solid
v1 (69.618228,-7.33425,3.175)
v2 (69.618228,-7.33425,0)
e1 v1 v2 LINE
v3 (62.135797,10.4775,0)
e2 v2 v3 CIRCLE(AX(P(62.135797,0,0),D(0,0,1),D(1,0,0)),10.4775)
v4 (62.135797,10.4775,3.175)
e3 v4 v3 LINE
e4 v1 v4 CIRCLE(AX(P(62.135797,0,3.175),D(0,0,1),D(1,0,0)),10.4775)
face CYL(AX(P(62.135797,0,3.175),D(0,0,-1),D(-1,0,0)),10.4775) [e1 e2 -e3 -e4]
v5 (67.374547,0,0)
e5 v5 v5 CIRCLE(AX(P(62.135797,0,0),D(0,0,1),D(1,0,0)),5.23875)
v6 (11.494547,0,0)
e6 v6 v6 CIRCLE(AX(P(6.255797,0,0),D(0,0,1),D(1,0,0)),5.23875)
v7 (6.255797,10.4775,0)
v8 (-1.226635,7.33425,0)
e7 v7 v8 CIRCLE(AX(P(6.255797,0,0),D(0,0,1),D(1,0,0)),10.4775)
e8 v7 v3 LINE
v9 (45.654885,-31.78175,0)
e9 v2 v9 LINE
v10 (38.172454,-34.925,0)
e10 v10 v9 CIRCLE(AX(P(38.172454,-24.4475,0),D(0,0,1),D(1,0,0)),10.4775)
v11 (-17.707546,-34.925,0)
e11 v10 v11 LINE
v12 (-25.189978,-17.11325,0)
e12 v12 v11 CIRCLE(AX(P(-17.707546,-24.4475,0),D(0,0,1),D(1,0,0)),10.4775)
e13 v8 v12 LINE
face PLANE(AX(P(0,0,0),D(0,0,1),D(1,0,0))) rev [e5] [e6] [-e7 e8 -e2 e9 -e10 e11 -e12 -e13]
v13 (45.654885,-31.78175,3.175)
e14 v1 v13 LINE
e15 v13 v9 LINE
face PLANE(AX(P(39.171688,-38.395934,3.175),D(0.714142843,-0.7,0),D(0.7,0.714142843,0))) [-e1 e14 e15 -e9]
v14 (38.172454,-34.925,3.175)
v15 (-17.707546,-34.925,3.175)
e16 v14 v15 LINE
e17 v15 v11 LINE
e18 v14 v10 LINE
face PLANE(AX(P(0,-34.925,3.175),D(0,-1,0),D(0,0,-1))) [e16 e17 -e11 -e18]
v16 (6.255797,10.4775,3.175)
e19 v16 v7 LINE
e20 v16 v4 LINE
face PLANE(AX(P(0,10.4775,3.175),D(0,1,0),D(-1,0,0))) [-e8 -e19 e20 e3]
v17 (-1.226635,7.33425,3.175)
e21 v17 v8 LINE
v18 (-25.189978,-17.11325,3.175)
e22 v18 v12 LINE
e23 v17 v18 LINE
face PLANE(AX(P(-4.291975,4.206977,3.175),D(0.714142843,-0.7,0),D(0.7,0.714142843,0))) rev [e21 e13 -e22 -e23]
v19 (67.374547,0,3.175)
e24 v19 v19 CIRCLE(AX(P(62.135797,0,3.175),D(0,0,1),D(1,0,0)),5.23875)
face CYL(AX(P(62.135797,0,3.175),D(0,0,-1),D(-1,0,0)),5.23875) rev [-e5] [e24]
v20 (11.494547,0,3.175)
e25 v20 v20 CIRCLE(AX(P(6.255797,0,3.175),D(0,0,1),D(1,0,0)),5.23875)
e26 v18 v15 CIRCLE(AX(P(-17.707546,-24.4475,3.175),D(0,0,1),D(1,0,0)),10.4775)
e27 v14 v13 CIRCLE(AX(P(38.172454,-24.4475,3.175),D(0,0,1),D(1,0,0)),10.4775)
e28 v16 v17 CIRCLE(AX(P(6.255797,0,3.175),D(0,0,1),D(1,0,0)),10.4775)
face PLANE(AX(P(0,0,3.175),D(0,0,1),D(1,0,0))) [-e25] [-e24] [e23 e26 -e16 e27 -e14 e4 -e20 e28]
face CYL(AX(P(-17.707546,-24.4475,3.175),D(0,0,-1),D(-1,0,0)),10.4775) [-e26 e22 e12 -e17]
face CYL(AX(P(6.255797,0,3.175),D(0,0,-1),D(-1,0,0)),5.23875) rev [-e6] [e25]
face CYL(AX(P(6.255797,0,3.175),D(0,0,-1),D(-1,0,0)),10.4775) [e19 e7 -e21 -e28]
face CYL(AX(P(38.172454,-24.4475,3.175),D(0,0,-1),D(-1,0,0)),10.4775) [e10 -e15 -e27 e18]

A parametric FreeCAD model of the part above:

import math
import FreeCAD as App
import Part
import Sketcher
Q = App.Units.Quantity

doc = App.newDocument("Part")
params = doc.addObject("Spreadsheet::Sheet", "Params")
for row, (alias, value) in enumerate([
    ("sketch1_width", "2.2 in"),
    ("pad1_length", "0.125 in"),
], start=1):
    params.set(f"A{row}", alias)
    params.set(f"B{row}", "=" + value)
    params.setAlias(f"B{row}", alias)

body = doc.addObject("PartDesign::Body", "Body")

sketch1 = body.newObject("Sketcher::SketchObject", "Sketch")
sketch1.AttachmentSupport = (doc.getObject("XY_Plane"), [""])
sketch1.MapMode = "FlatFace"
sketch1.addGeometry(Part.ArcOfCircle(Part.Circle(App.Vector(62, 0, 0), App.Vector(0, 0, 1), 10), math.radians(-44), math.radians(90)), False)
sketch1.addGeometry(Part.LineSegment(App.Vector(62, 10, 0), App.Vector(6, 10, 0)), False)
sketch1.addGeometry(Part.ArcOfCircle(Part.Circle(App.Vector(6, 0, 0), App.Vector(0, 0, 1), 10), math.radians(90), math.radians(136)), False)
sketch1.addGeometry(Part.LineSegment(App.Vector(-1, 7, 0), App.Vector(-25, -17, 0)), False)
sketch1.addGeometry(Part.ArcOfCircle(Part.Circle(App.Vector(-18, -24, 0), App.Vector(0, 0, 1), 10), math.radians(136), math.radians(270)), False)
sketch1.addGeometry(Part.LineSegment(App.Vector(-18, -35, 0), App.Vector(38, -35, 0)), False)
sketch1.addGeometry(Part.ArcOfCircle(Part.Circle(App.Vector(38, -24, 0), App.Vector(0, 0, 1), 10), math.radians(-90), math.radians(-44)), False)
sketch1.addGeometry(Part.LineSegment(App.Vector(46, -32, 0), App.Vector(70, -7, 0)), False)
sketch1.addGeometry(Part.Circle(App.Vector(62, 0, 0), App.Vector(0, 0, 1), 5), False)
sketch1.addGeometry(Part.Circle(App.Vector(6, 0, 0), App.Vector(0, 0, 1), 5), False)
sketch1.addConstraint(Sketcher.Constraint("Tangent", 0, 2, 1, 1))
sketch1.addConstraint(Sketcher.Constraint("Tangent", 1, 2, 2, 1))
sketch1.addConstraint(Sketcher.Constraint("Tangent", 2, 2, 3, 1))
sketch1.addConstraint(Sketcher.Constraint("Tangent", 3, 2, 4, 1))
sketch1.addConstraint(Sketcher.Constraint("Tangent", 4, 2, 5, 1))
sketch1.addConstraint(Sketcher.Constraint("Tangent", 5, 2, 6, 1))
sketch1.addConstraint(Sketcher.Constraint("Tangent", 6, 2, 7, 1))
sketch1.addConstraint(Sketcher.Constraint("Tangent", 7, 2, 0, 1))
sketch1.addConstraint(Sketcher.Constraint("Horizontal", 1))
sketch1.addConstraint(Sketcher.Constraint("Horizontal", 5))
sketch1.addConstraint(Sketcher.Constraint("Coincident", 8, 3, 0, 3))
sketch1.addConstraint(Sketcher.Constraint("Coincident", 9, 3, 2, 3))
sketch1.addConstraint(Sketcher.Constraint("Equal", 0, 2))
sketch1.addConstraint(Sketcher.Constraint("Equal", 2, 4))
sketch1.addConstraint(Sketcher.Constraint("Equal", 4, 6))
sketch1.addConstraint(Sketcher.Constraint("Equal", 8, 9))
sketch1.addConstraint(Sketcher.Constraint("PointOnObject", 0, 3, -1))
sketch1.addConstraint(Sketcher.Constraint("Parallel", 3, 7))
sketch1.addConstraint(Sketcher.Constraint("DistanceX", 1, 2, 1, 1, Q("2.2 in")))
sketch1.addConstraint(Sketcher.Constraint("Diameter", 8, Q("0.4125 in")))
sketch1.addConstraint(Sketcher.Constraint("Radius", 0, Q("0.4125 in")))
sketch1.addConstraint(Sketcher.Constraint("DistanceY", 4, 2, -1, 1, Q("1.375 in")))
sketch1.addConstraint(Sketcher.Constraint("DistanceY", -1, 1, 2, 2, 7.33425))
sketch1.addConstraint(Sketcher.Constraint("DistanceX", 3, 2, -1, 1, 25.189978))
sketch1.setExpression("Constraints[18]", "Params.sketch1_width")
pad1 = body.newObject("PartDesign::Pad", "Pad")
pad1.Profile = sketch1
pad1.setExpression("Length", "Params.pad1_length")

doc.recompute()
